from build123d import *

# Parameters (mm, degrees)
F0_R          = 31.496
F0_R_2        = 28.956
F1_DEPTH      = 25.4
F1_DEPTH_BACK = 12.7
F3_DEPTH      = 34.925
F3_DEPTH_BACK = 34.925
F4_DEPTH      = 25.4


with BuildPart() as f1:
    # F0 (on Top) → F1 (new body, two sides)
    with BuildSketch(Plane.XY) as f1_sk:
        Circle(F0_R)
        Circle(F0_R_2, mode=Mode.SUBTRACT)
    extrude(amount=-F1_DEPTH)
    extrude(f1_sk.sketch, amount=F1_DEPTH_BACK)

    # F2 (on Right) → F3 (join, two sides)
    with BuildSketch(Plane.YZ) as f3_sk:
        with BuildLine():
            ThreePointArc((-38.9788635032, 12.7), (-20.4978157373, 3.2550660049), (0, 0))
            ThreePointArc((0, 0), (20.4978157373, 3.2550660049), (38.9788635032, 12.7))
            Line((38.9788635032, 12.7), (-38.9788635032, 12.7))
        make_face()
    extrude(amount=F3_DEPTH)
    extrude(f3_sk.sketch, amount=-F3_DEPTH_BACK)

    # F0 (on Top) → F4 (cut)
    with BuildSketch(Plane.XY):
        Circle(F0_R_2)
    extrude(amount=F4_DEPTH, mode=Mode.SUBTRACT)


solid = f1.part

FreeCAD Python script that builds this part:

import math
import FreeCAD as App
import Part
import Sketcher

V = App.Vector
Q = App.Units.Quantity

doc = App.newDocument("Part")
body = doc.addObject("PartDesign::Body", "Body")

sketch1 = doc.addObject("Sketcher::SketchObject", "Sketch")
body.addObject(sketch1)
sketch1.AttachmentSupport = (doc.XY_Plane, [""])
sketch1.MapMode = "FlatFace"
sketch1.addGeometry([
    Part.Circle(V(0, 0, 0), V(0, 0, 1), 31),
    Part.Circle(V(0, 0, 0), V(0, 0, 1), 29),
], False)
sketch1.addConstraint([
    Sketcher.Constraint("Coincident", 0, 3, -1, 1),
    Sketcher.Constraint("Coincident", 1, 3, -1, 1),
    Sketcher.Constraint("Diameter", 0, Q("2.48 in")),
    Sketcher.Constraint("Diameter", 1, Q("2.28 in")),
])
pad1 = doc.addObject("PartDesign::Pad", "Pad")
body.addObject(pad1)
pad1.Profile = sketch1
pad1.Type = "TwoLengths"
pad1.Length = Q("1 in")
pad1.Length2 = Q("0.5 in")
pad1.Reversed = True

sketch2 = doc.addObject("Sketcher::SketchObject", "Sketch001")
body.addObject(sketch2)
sketch2.AttachmentSupport = (doc.YZ_Plane, [""])
sketch2.MapMode = "FlatFace"
sketch2.addGeometry([
    Part.ArcOfCircle(Part.Circle(V(0, 66, 0), V(0, 0, 1), 66), math.radians(-126), math.radians(-90)),
    Part.ArcOfCircle(Part.Circle(V(0, 66, 0), V(0, 0, 1), 66), math.radians(-90), math.radians(-54)),
    Part.LineSegment(V(39, 13, 0), V(-39, 13, 0)),
], False)
sketch2.addConstraint([
    Sketcher.Constraint("Tangent", 0, 2, 1, 1),
    Sketcher.Constraint("Coincident", 1, 2, 2, 1),
    Sketcher.Constraint("Coincident", 2, 2, 0, 1),
    Sketcher.Constraint("Horizontal", 2),
    Sketcher.Constraint("Coincident", 0, 2, -1, 1),
    Sketcher.Constraint("Equal", 0, 1),
    Sketcher.Constraint("PointOnObject", 0, 3, -2),
    Sketcher.Constraint("Radius", 0, Q("2.605 in")),
    Sketcher.Constraint("DistanceY", -1, 1, 1, 2, Q("0.5 in")),
])
pad2 = doc.addObject("PartDesign::Pad", "Pad001")
body.addObject(pad2)
pad2.Profile = sketch2
pad2.Type = "TwoLengths"
pad2.Length = Q("1.375 in")
pad2.Length2 = Q("1.375 in")

sketch3 = doc.addObject("Sketcher::SketchObject", "Sketch002")
body.addObject(sketch3)
sketch3.AttachmentSupport = (doc.XY_Plane, [""])
sketch3.MapMode = "FlatFace"
sketch3.addGeometry(Part.Circle(V(0, 0, 0), V(0, 0, 1), 29), False)
sketch3.addConstraint([
    Sketcher.Constraint("Coincident", 0, 3, -1, 1),
    Sketcher.Constraint("Diameter", 0, Q("2.28 in")),
])
pocket1 = doc.addObject("PartDesign::Pocket", "Pocket")
body.addObject(pocket1)
pocket1.Profile = sketch3
pocket1.Length = Q("1 in")
pocket1.Reversed = True

doc.recompute()
